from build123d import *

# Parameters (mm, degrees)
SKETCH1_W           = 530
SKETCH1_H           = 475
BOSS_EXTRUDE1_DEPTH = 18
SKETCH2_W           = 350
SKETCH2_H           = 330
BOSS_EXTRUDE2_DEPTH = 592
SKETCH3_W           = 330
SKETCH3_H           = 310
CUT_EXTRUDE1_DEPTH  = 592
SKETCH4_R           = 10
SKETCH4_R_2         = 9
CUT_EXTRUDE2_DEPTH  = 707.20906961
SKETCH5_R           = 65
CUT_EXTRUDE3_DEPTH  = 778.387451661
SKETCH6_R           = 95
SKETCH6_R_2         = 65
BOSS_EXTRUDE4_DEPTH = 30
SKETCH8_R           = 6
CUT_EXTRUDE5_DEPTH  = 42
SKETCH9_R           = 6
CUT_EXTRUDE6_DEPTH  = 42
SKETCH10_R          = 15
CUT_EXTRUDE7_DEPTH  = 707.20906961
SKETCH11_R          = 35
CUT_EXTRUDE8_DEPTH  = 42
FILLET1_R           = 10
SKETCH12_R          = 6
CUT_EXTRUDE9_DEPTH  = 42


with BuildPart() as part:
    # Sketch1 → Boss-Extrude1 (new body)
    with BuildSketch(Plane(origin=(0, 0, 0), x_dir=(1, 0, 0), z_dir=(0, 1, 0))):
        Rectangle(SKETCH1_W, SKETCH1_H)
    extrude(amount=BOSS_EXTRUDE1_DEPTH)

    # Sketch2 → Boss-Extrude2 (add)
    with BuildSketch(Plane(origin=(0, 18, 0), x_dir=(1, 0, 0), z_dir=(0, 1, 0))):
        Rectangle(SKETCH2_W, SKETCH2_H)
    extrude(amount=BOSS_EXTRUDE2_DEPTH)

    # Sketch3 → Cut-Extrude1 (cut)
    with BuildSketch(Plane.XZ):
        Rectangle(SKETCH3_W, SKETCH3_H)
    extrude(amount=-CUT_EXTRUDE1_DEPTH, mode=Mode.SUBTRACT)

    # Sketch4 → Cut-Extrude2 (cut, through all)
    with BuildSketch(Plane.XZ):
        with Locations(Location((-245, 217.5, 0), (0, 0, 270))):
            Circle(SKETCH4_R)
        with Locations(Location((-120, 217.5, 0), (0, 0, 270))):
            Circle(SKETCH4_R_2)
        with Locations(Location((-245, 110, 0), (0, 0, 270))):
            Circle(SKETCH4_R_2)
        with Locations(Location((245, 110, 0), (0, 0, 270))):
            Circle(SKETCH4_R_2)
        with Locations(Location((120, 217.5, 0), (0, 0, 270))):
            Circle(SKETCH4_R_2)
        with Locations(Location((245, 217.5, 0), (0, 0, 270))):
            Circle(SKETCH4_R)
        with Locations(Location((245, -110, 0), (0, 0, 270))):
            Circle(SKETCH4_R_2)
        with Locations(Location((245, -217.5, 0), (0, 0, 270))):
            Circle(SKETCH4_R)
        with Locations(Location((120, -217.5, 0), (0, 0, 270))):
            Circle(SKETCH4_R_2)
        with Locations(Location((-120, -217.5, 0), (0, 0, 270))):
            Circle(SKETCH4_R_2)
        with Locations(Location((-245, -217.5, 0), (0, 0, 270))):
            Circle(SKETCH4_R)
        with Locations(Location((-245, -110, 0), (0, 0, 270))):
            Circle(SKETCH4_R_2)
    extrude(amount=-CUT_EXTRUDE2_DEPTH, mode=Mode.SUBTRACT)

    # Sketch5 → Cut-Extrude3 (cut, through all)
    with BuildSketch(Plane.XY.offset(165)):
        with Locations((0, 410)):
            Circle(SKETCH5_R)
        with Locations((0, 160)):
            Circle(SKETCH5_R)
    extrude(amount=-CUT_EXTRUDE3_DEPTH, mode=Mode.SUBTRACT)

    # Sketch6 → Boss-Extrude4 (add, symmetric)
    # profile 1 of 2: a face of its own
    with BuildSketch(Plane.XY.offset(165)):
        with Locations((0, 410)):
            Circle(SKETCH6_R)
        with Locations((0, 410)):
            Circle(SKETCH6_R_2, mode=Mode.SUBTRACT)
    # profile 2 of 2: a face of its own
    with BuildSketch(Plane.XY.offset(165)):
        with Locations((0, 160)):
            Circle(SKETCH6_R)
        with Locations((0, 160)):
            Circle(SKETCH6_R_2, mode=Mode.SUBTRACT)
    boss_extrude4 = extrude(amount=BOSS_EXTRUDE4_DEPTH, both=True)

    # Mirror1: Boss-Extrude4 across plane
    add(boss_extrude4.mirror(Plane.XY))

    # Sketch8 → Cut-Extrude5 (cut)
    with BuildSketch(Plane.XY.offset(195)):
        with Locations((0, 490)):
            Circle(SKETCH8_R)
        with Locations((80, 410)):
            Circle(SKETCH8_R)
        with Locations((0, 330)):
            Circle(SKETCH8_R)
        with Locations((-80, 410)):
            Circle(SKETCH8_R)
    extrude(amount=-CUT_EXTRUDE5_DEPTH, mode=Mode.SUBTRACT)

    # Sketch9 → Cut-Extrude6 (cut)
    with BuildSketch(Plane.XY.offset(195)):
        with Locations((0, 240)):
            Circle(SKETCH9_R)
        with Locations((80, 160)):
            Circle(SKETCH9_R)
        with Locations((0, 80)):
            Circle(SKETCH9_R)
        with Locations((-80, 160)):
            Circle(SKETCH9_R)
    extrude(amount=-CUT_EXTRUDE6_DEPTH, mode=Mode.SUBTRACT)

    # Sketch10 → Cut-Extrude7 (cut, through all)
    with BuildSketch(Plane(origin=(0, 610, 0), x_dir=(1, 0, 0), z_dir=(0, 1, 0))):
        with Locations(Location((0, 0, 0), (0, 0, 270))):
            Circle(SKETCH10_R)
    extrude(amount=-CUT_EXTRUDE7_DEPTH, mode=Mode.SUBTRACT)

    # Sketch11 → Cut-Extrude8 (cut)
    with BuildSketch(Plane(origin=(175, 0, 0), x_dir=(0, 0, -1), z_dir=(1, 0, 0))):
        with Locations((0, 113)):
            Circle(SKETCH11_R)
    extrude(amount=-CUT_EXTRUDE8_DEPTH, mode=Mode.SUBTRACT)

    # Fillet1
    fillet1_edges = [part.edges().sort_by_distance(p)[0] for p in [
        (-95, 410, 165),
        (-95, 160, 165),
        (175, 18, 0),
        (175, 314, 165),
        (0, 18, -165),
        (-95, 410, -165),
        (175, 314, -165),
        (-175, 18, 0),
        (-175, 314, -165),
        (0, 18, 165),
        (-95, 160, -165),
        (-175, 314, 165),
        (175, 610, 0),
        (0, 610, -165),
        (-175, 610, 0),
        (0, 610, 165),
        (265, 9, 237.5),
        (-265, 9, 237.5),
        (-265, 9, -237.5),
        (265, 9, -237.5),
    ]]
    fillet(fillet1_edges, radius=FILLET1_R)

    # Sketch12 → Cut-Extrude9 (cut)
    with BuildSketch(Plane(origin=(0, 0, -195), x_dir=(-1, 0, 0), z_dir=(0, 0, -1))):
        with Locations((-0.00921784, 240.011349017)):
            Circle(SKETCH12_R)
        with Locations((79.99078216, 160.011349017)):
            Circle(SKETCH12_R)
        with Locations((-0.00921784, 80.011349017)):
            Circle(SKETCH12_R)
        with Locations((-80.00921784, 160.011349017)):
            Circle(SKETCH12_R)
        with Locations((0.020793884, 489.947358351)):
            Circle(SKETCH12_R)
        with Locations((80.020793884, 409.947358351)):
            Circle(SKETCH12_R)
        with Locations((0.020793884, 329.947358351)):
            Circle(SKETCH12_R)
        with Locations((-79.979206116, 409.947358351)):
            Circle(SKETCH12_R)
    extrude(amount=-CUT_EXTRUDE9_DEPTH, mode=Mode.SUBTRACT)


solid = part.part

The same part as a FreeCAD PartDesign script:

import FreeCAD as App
import Part
import Sketcher
from FreeCAD import Vector
Q = App.Units.Quantity


def edges_at(feature, points):
    """Names of the edges that pass closest to the given points."""
    edges = feature.Shape.Edges
    near = lambda p: min(range(len(edges)), key=lambda i: edges[i].distToShape(Part.Vertex(*p))[0])
    return sorted({f"Edge{near(p) + 1}" for p in points})

doc = App.newDocument("Part")
params = doc.addObject("Spreadsheet::Sheet", "Params")
for row, (alias, value) in enumerate([
    ("sketch1_width", "530 mm"),
    ("sketch1_height", "475 mm"),
    ("pad1_length", "18 mm"),
    ("sketch2_width", "350 mm"),
    ("sketch2_height", "330 mm"),
    ("pad2_length", "592 mm"),
    ("sketch3_width", "330 mm"),
    ("sketch3_height", "310 mm"),
    ("pocket1_length", "592 mm"),
    ("sketch4_diameter", "20 mm"),
    ("sketch4_diameter2", "18 mm"),
    ("sketch5_diameter", "130 mm"),
    ("sketch6_diameter", "190 mm"),
    ("sketch6_diameter2", "130 mm"),
    ("pad3_length", "60 mm"),
    ("sketch7_diameter", "12 mm"),
    ("pocket4_length", "42 mm"),
    ("sketch8_diameter", "12 mm"),
    ("pocket5_length", "42 mm"),
    ("sketch9_diameter", "30 mm"),
    ("sketch10_diameter", "70 mm"),
    ("pocket7_length", "42 mm"),
    ("fillet_radius", "10 mm"),
    ("sketch11_diameter", "12 mm"),
    ("pocket8_length", "42 mm"),
], start=1):
    params.set(f"A{row}", alias)
    params.set(f"B{row}", "=" + value)
    params.setAlias(f"B{row}", alias)

body = doc.addObject("PartDesign::Body", "Body")

sketch1 = body.newObject("Sketcher::SketchObject", "Sketch")
sketch1.AttachmentSupport = (doc.getObject("XZ_Plane"), [""])
sketch1.MapMode = "FlatFace"
sketch1.addGeometry(Part.LineSegment(Vector(-265, -238, 0), Vector(-265, 238, 0)), False)
sketch1.addGeometry(Part.LineSegment(Vector(-265, 238, 0), Vector(265, 238, 0)), False)
sketch1.addGeometry(Part.LineSegment(Vector(265, 238, 0), Vector(265, -238, 0)), False)
sketch1.addGeometry(Part.LineSegment(Vector(265, -238, 0), Vector(-265, -238, 0)), False)
sketch1.addConstraint(Sketcher.Constraint("Coincident", 0, 2, 1, 1))
sketch1.addConstraint(Sketcher.Constraint("Coincident", 1, 2, 2, 1))
sketch1.addConstraint(Sketcher.Constraint("Coincident", 2, 2, 3, 1))
sketch1.addConstraint(Sketcher.Constraint("Coincident", 3, 2, 0, 1))
sketch1.addConstraint(Sketcher.Constraint("Vertical", 0))
sketch1.addConstraint(Sketcher.Constraint("Horizontal", 1))
sketch1.addConstraint(Sketcher.Constraint("Vertical", 2))
sketch1.addConstraint(Sketcher.Constraint("Horizontal", 3))
sketch1.addConstraint(Sketcher.Constraint("Symmetric", 0, 2, 2, 2, -1, 1))
sketch1.addConstraint(Sketcher.Constraint("DistanceX", 1, 1, 1, 2, Q("530 mm")))
sketch1.addConstraint(Sketcher.Constraint("DistanceY", 0, 1, 0, 2, Q("475 mm")))
sketch1.setExpression("Constraints[9]", "Params.sketch1_width")
sketch1.setExpression("Constraints[10]", "Params.sketch1_height")
pad1 = body.newObject("PartDesign::Pad", "Pad")
pad1.Profile = sketch1
pad1.setExpression("Length", "Params.pad1_length")
pad1.Reversed = True

sketch2 = body.newObject("Sketcher::SketchObject", "Sketch001")
sketch2.AttachmentSupport = (doc.getObject("XZ_Plane"), [""])
sketch2.MapMode = "FlatFace"
sketch2.AttachmentOffset = App.Placement(Vector(0, 0, -18), App.Rotation())
sketch2.addGeometry(Part.LineSegment(Vector(-175, -165, 0), Vector(-175, 165, 0)), False)
sketch2.addGeometry(Part.LineSegment(Vector(-175, 165, 0), Vector(175, 165, 0)), False)
sketch2.addGeometry(Part.LineSegment(Vector(175, 165, 0), Vector(175, -165, 0)), False)
sketch2.addGeometry(Part.LineSegment(Vector(175, -165, 0), Vector(-175, -165, 0)), False)
sketch2.addConstraint(Sketcher.Constraint("Coincident", 0, 2, 1, 1))
sketch2.addConstraint(Sketcher.Constraint("Coincident", 1, 2, 2, 1))
sketch2.addConstraint(Sketcher.Constraint("Coincident", 2, 2, 3, 1))
sketch2.addConstraint(Sketcher.Constraint("Coincident", 3, 2, 0, 1))
sketch2.addConstraint(Sketcher.Constraint("Vertical", 0))
sketch2.addConstraint(Sketcher.Constraint("Horizontal", 1))
sketch2.addConstraint(Sketcher.Constraint("Vertical", 2))
sketch2.addConstraint(Sketcher.Constraint("Horizontal", 3))
sketch2.addConstraint(Sketcher.Constraint("Symmetric", 0, 2, 2, 2, -1, 1))
sketch2.addConstraint(Sketcher.Constraint("DistanceX", 1, 1, 1, 2, Q("350 mm")))
sketch2.addConstraint(Sketcher.Constraint("DistanceY", 0, 1, 0, 2, Q("330 mm")))
sketch2.setExpression("Constraints[9]", "Params.sketch2_width")
sketch2.setExpression("Constraints[10]", "Params.sketch2_height")
pad2 = body.newObject("PartDesign::Pad", "Pad001")
pad2.Profile = sketch2
pad2.setExpression("Length", "Params.pad2_length")
pad2.Reversed = True

sketch3 = body.newObject("Sketcher::SketchObject", "Sketch002")
sketch3.AttachmentSupport = (doc.getObject("XZ_Plane"), [""])
sketch3.MapMode = "FlatFace"
sketch3.addGeometry(Part.LineSegment(Vector(-165, 155, 0), Vector(-165, -155, 0)), False)
sketch3.addGeometry(Part.LineSegment(Vector(-165, -155, 0), Vector(165, -155, 0)), False)
sketch3.addGeometry(Part.LineSegment(Vector(165, -155, 0), Vector(165, 155, 0)), False)
sketch3.addGeometry(Part.LineSegment(Vector(165, 155, 0), Vector(-165, 155, 0)), False)
sketch3.addConstraint(Sketcher.Constraint("Coincident", 0, 2, 1, 1))
sketch3.addConstraint(Sketcher.Constraint("Coincident", 1, 2, 2, 1))
sketch3.addConstraint(Sketcher.Constraint("Coincident", 2, 2, 3, 1))
sketch3.addConstraint(Sketcher.Constraint("Coincident", 3, 2, 0, 1))
sketch3.addConstraint(Sketcher.Constraint("Vertical", 0))
sketch3.addConstraint(Sketcher.Constraint("Horizontal", 1))
sketch3.addConstraint(Sketcher.Constraint("Vertical", 2))
sketch3.addConstraint(Sketcher.Constraint("Horizontal", 3))
sketch3.addConstraint(Sketcher.Constraint("Symmetric", 0, 2, 2, 2, -1, 1))
sketch3.addConstraint(Sketcher.Constraint("DistanceX", 1, 1, 1, 2, Q("330 mm")))
sketch3.addConstraint(Sketcher.Constraint("DistanceY", 0, 2, 0, 1, Q("310 mm")))
sketch3.setExpression("Constraints[9]", "Params.sketch3_width")
sketch3.setExpression("Constraints[10]", "Params.sketch3_height")
pocket1 = body.newObject("PartDesign::Pocket", "Pocket")
pocket1.Profile = sketch3
pocket1.setExpression("Length", "Params.pocket1_length")

sketch4 = body.newObject("Sketcher::SketchObject", "Sketch003")
sketch4.AttachmentSupport = (doc.getObject("XZ_Plane"), [""])
sketch4.MapMode = "FlatFace"
sketch4.addGeometry(Part.Circle(Vector(-245, 218, 0), Vector(0, 0, 1), 10), False)
sketch4.addGeometry(Part.Circle(Vector(-120, 218, 0), Vector(0, 0, 1), 9), False)
sketch4.addGeometry(Part.Circle(Vector(-245, 110, 0), Vector(0, 0, 1), 9), False)
sketch4.addGeometry(Part.Circle(Vector(245, 110, 0), Vector(0, 0, 1), 9), False)
sketch4.addGeometry(Part.Circle(Vector(120, 218, 0), Vector(0, 0, 1), 9), False)
sketch4.addGeometry(Part.Circle(Vector(245, 218, 0), Vector(0, 0, 1), 10), False)
sketch4.addGeometry(Part.Circle(Vector(245, -110, 0), Vector(0, 0, 1), 9), False)
sketch4.addGeometry(Part.Circle(Vector(245, -218, 0), Vector(0, 0, 1), 10), False)
sketch4.addGeometry(Part.Circle(Vector(120, -218, 0), Vector(0, 0, 1), 9), False)
sketch4.addGeometry(Part.Circle(Vector(-120, -218, 0), Vector(0, 0, 1), 9), False)
sketch4.addGeometry(Part.Circle(Vector(-245, -218, 0), Vector(0, 0, 1), 10), False)
sketch4.addGeometry(Part.Circle(Vector(-245, -110, 0), Vector(0, 0, 1), 9), False)
sketch4.addConstraint(Sketcher.Constraint("Equal", 1, 2))
sketch4.addConstraint(Sketcher.Constraint("Equal", 2, 3))
sketch4.addConstraint(Sketcher.Constraint("Equal", 3, 4))
sketch4.addConstraint(Sketcher.Constraint("Equal", 0, 5))
sketch4.addConstraint(Sketcher.Constraint("Equal", 4, 6))
sketch4.addConstraint(Sketcher.Constraint("Equal", 5, 7))
sketch4.addConstraint(Sketcher.Constraint("Equal", 6, 8))
sketch4.addConstraint(Sketcher.Constraint("Equal", 8, 9))
sketch4.addConstraint(Sketcher.Constraint("Equal", 7, 10))
sketch4.addConstraint(Sketcher.Constraint("Equal", 9, 11))
sketch4.addConstraint(Sketcher.Constraint("Symmetric", 2, 3, 6, 3, -1, 1))
sketch4.addConstraint(Sketcher.Constraint("Symmetric", 0, 3, 7, 3, -1, 1))
sketch4.addConstraint(Sketcher.Constraint("Symmetric", 1, 3, 8, 3, -1, 1))
sketch4.addConstraint(Sketcher.Constraint("Symmetric", 4, 3, 9, 3, -1, 1))
sketch4.addConstraint(Sketcher.Constraint("Symmetric", 5, 3, 10, 3, -1, 1))
sketch4.addConstraint(Sketcher.Constraint("Symmetric", 3, 3, 11, 3, -1, 1))
sketch4.addConstraint(Sketcher.Constraint("Symmetric", 2, 3, 3, 3, -2))
sketch4.addConstraint(Sketcher.Constraint("Symmetric", 1, 3, 4, 3, -2))
sketch4.addConstraint(Sketcher.Constraint("Symmetric", 0, 3, 5, 3, -2))
sketch4.addConstraint(Sketcher.Constraint("Horizontal", 0, 3, 1, 3))
sketch4.addConstraint(Sketcher.Constraint("Vertical", 0, 3, 2, 3))
sketch4.addConstraint(Sketcher.Constraint("Diameter", 0, Q("20 mm")))
sketch4.addConstraint(Sketcher.Constraint("Diameter", 1, Q("18 mm")))
sketch4.addConstraint(Sketcher.Constraint("DistanceX", 0, 3, -1, 1, Q("245 mm")))
sketch4.addConstraint(Sketcher.Constraint("DistanceX", 1, 3, -1, 1, Q("120 mm")))
sketch4.addConstraint(Sketcher.Constraint("DistanceY", -1, 1, 2, 3, Q("110 mm")))
sketch4.addConstraint(Sketcher.Constraint("DistanceY", 7, 3, 5, 3, Q("435 mm")))
sketch4.setExpression("Constraints[21]", "Params.sketch4_diameter")
sketch4.setExpression("Constraints[22]", "Params.sketch4_diameter2")
pocket2 = body.newObject("PartDesign::Pocket", "Pocket001")
pocket2.Profile = sketch4
pocket2.Type = "ThroughAll"

sketch5 = body.newObject("Sketcher::SketchObject", "Sketch004")
sketch5.AttachmentSupport = (doc.getObject("XY_Plane"), [""])
sketch5.MapMode = "FlatFace"
sketch5.AttachmentOffset = App.Placement(Vector(0, 0, 165), App.Rotation())
sketch5.addGeometry(Part.Circle(Vector(0, 410, 0), Vector(0, 0, 1), 65), False)
sketch5.addGeometry(Part.Circle(Vector(0, 160, 0), Vector(0, 0, 1), 65), False)
sketch5.addConstraint(Sketcher.Constraint("Equal", 0, 1))
sketch5.addConstraint(Sketcher.Constraint("PointOnObject", 0, 3, -2))
sketch5.addConstraint(Sketcher.Constraint("PointOnObject", 1, 3, -2))
sketch5.addConstraint(Sketcher.Constraint("Diameter", 0, Q("130 mm")))
sketch5.addConstraint(Sketcher.Constraint("DistanceY", -1, 1, 0, 3, Q("410 mm")))
sketch5.addConstraint(Sketcher.Constraint("DistanceY", -1, 1, 1, 3, Q("160 mm")))
sketch5.setExpression("Constraints[3]", "Params.sketch5_diameter")
pocket3 = body.newObject("PartDesign::Pocket", "Pocket002")
pocket3.Profile = sketch5
pocket3.Type = "ThroughAll"

sketch6 = body.newObject("Sketcher::SketchObject", "Sketch005")
sketch6.AttachmentSupport = (doc.getObject("XY_Plane"), [""])
sketch6.MapMode = "FlatFace"
sketch6.AttachmentOffset = App.Placement(Vector(0, 0, 165), App.Rotation())
sketch6.addGeometry(Part.Circle(Vector(0, 410, 0), Vector(0, 0, 1), 95), False)
sketch6.addGeometry(Part.Circle(Vector(0, 410, 0), Vector(0, 0, 1), 65), False)
sketch6.addGeometry(Part.Circle(Vector(0, 160, 0), Vector(0, 0, 1), 95), False)
sketch6.addGeometry(Part.Circle(Vector(0, 160, 0), Vector(0, 0, 1), 65), False)
sketch6.addConstraint(Sketcher.Constraint("Coincident", 1, 3, 0, 3))
sketch6.addConstraint(Sketcher.Constraint("Coincident", 3, 3, 2, 3))
sketch6.addConstraint(Sketcher.Constraint("Equal", 0, 2))
sketch6.addConstraint(Sketcher.Constraint("Equal", 1, 3))
sketch6.addConstraint(Sketcher.Constraint("PointOnObject", 0, 3, -2))
sketch6.addConstraint(Sketcher.Constraint("PointOnObject", 2, 3, -2))
sketch6.addConstraint(Sketcher.Constraint("Diameter", 0, Q("190 mm")))
sketch6.addConstraint(Sketcher.Constraint("Diameter", 1, Q("130 mm")))
sketch6.addConstraint(Sketcher.Constraint("DistanceY", -1, 1, 0, 3, Q("410 mm")))
sketch6.addConstraint(Sketcher.Constraint("DistanceY", -1, 1, 2, 3, Q("160 mm")))
sketch6.setExpression("Constraints[6]", "Params.sketch6_diameter")
sketch6.setExpression("Constraints[7]", "Params.sketch6_diameter2")
pad3 = body.newObject("PartDesign::Pad", "Pad002")
pad3.Profile = sketch6
pad3.setExpression("Length", "Params.pad3_length")
pad3.Midplane = True
doc.recompute()

mirrored = body.newObject("PartDesign::Mirrored", "Mirrored")
mirrored.Originals = [pad3]
mirrored.MirrorPlane = (doc.getObject("XY_Plane"), [""])
body.Tip = mirrored

sketch7 = body.newObject("Sketcher::SketchObject", "Sketch006")
sketch7.AttachmentSupport = (doc.getObject("XY_Plane"), [""])
sketch7.MapMode = "FlatFace"
sketch7.AttachmentOffset = App.Placement(Vector(0, 0, 195), App.Rotation())
sketch7.addGeometry(Part.Circle(Vector(0, 490, 0), Vector(0, 0, 1), 6), False)
sketch7.addGeometry(Part.Circle(Vector(80, 410, 0), Vector(0, 0, 1), 6), False)
sketch7.addGeometry(Part.Circle(Vector(0, 330, 0), Vector(0, 0, 1), 6), False)
sketch7.addGeometry(Part.Circle(Vector(-80, 410, 0), Vector(0, 0, 1), 6), False)
sketch7.addConstraint(Sketcher.Constraint("Equal", 0, 1))
sketch7.addConstraint(Sketcher.Constraint("Equal", 1, 2))
sketch7.addConstraint(Sketcher.Constraint("Equal", 2, 3))
sketch7.addConstraint(Sketcher.Constraint("Symmetric", 1, 3, 3, 3, -2))
sketch7.addConstraint(Sketcher.Constraint("PointOnObject", 0, 3, -2))
sketch7.addConstraint(Sketcher.Constraint("PointOnObject", 2, 3, -2))
sketch7.addConstraint(Sketcher.Constraint("Diameter", 0, Q("12 mm")))
sketch7.addConstraint(Sketcher.Constraint("DistanceY", -1, 1, 0, 3, Q("490 mm")))
sketch7.addConstraint(Sketcher.Constraint("DistanceX", -1, 1, 1, 3, Q("80 mm")))
sketch7.addConstraint(Sketcher.Constraint("DistanceY", -1, 1, 1, 3, Q("410 mm")))
sketch7.addConstraint(Sketcher.Constraint("DistanceY", -1, 1, 2, 3, Q("330 mm")))
sketch7.setExpression("Constraints[6]", "Params.sketch7_diameter")
pocket4 = body.newObject("PartDesign::Pocket", "Pocket003")
pocket4.Profile = sketch7
pocket4.setExpression("Length", "Params.pocket4_length")

sketch8 = body.newObject("Sketcher::SketchObject", "Sketch007")
sketch8.AttachmentSupport = (doc.getObject("XY_Plane"), [""])
sketch8.MapMode = "FlatFace"
sketch8.AttachmentOffset = App.Placement(Vector(0, 0, 195), App.Rotation())
sketch8.addGeometry(Part.Circle(Vector(0, 240, 0), Vector(0, 0, 1), 6), False)
sketch8.addGeometry(Part.Circle(Vector(80, 160, 0), Vector(0, 0, 1), 6), False)
sketch8.addGeometry(Part.Circle(Vector(0, 80, 0), Vector(0, 0, 1), 6), False)
sketch8.addGeometry(Part.Circle(Vector(-80, 160, 0), Vector(0, 0, 1), 6), False)
sketch8.addConstraint(Sketcher.Constraint("Equal", 0, 1))
sketch8.addConstraint(Sketcher.Constraint("Equal", 1, 2))
sketch8.addConstraint(Sketcher.Constraint("Equal", 2, 3))
sketch8.addConstraint(Sketcher.Constraint("Symmetric", 1, 3, 3, 3, -2))
sketch8.addConstraint(Sketcher.Constraint("PointOnObject", 0, 3, -2))
sketch8.addConstraint(Sketcher.Constraint("PointOnObject", 2, 3, -2))
sketch8.addConstraint(Sketcher.Constraint("Diameter", 0, Q("12 mm")))
sketch8.addConstraint(Sketcher.Constraint("DistanceY", -1, 1, 0, 3, Q("240 mm")))
sketch8.addConstraint(Sketcher.Constraint("DistanceX", -1, 1, 1, 3, Q("80 mm")))
sketch8.addConstraint(Sketcher.Constraint("DistanceY", -1, 1, 1, 3, Q("160 mm")))
sketch8.addConstraint(Sketcher.Constraint("DistanceY", -1, 1, 2, 3, Q("80 mm")))
sketch8.setExpression("Constraints[6]", "Params.sketch8_diameter")
pocket5 = body.newObject("PartDesign::Pocket", "Pocket004")
pocket5.Profile = sketch8
pocket5.setExpression("Length", "Params.pocket5_length")

sketch9 = body.newObject("Sketcher::SketchObject", "Sketch008")
sketch9.AttachmentSupport = (doc.getObject("XZ_Plane"), [""])
sketch9.MapMode = "FlatFace"
sketch9.AttachmentOffset = App.Placement(Vector(0, 0, -610), App.Rotation())
sketch9.addGeometry(Part.Circle(Vector(0, 0, 0), Vector(0, 0, 1), 15), False)
sketch9.addConstraint(Sketcher.Constraint("Coincident", 0, 3, -1, 1))
sketch9.addConstraint(Sketcher.Constraint("Diameter", 0, Q("30 mm")))
sketch9.setExpression("Constraints[1]", "Params.sketch9_diameter")
pocket6 = body.newObject("PartDesign::Pocket", "Pocket005")
pocket6.Profile = sketch9
pocket6.Type = "ThroughAll"
pocket6.Reversed = True

sketch10 = body.newObject("Sketcher::SketchObject", "Sketch009")
sketch10.AttachmentSupport = (doc.getObject("YZ_Plane"), [""])
sketch10.MapMode = "FlatFace"
sketch10.AttachmentOffset = App.Placement(Vector(0, 0, 175), App.Rotation())
sketch10.addGeometry(Part.Circle(Vector(113, 0, 0), Vector(0, 0, 1), 35), False)
sketch10.addConstraint(Sketcher.Constraint("PointOnObject", 0, 3, -1))
sketch10.addConstraint(Sketcher.Constraint("Diameter", 0, Q("70 mm")))
sketch10.addConstraint(Sketcher.Constraint("DistanceX", -1, 1, 0, 3, Q("113 mm")))
sketch10.setExpression("Constraints[1]", "Params.sketch10_diameter")
pocket7 = body.newObject("PartDesign::Pocket", "Pocket006")
pocket7.Profile = sketch10
pocket7.setExpression("Length", "Params.pocket7_length")
doc.recompute()

fillet = body.newObject("PartDesign::Fillet", "Fillet")
fillet.Base = (pocket7, edges_at(pocket7, [
    (-95, 410, 165),
    (-95, 160, 165),
    (175, 18, 0),
    (175, 314, 165),
    (0, 18, -165),
    (-95, 410, -165),
    (175, 314, -165),
    (-175, 18, 0),
    (-175, 314, -165),
    (0, 18, 165),
    (-95, 160, -165),
    (-175, 314, 165),
    (175, 610, 0),
    (0, 610, -165),
    (-175, 610, 0),
    (0, 610, 165),
    (265, 9, 237.5),
    (-265, 9, 237.5),
    (-265, 9, -237.5),
    (265, 9, -237.5),
]))
fillet.setExpression("Radius", "Params.fillet_radius")

sketch11 = body.newObject("Sketcher::SketchObject", "Sketch010")
sketch11.AttachmentSupport = (doc.getObject("XY_Plane"), [""])
sketch11.MapMode = "FlatFace"
sketch11.AttachmentOffset = App.Placement(Vector(0, 0, -195), App.Rotation())
sketch11.addGeometry(Part.Circle(Vector(0, 240, 0), Vector(0, 0, 1), 6), False)
sketch11.addGeometry(Part.Circle(Vector(-80, 160, 0), Vector(0, 0, 1), 6), False)
sketch11.addGeometry(Part.Circle(Vector(0, 80, 0), Vector(0, 0, 1), 6), False)
sketch11.addGeometry(Part.Circle(Vector(80, 160, 0), Vector(0, 0, 1), 6), False)
sketch11.addGeometry(Part.Circle(Vector(0, 490, 0), Vector(0, 0, 1), 6), False)
sketch11.addGeometry(Part.Circle(Vector(-80, 410, 0), Vector(0, 0, 1), 6), False)
sketch11.addGeometry(Part.Circle(Vector(0, 330, 0), Vector(0, 0, 1), 6), False)
sketch11.addGeometry(Part.Circle(Vector(80, 410, 0), Vector(0, 0, 1), 6), False)
sketch11.addConstraint(Sketcher.Constraint("Equal", 0, 1))
sketch11.addConstraint(Sketcher.Constraint("Equal", 1, 2))
sketch11.addConstraint(Sketcher.Constraint("Equal", 2, 3))
sketch11.addConstraint(Sketcher.Constraint("Equal", 3, 4))
sketch11.addConstraint(Sketcher.Constraint("Equal", 4, 5))
sketch11.addConstraint(Sketcher.Constraint("Equal", 5, 6))
sketch11.addConstraint(Sketcher.Constraint("Equal", 6, 7))
sketch11.addConstraint(Sketcher.Constraint("Horizontal", 1, 3, 3, 3))
sketch11.addConstraint(Sketcher.Constraint("Horizontal", 5, 3, 7, 3))
sketch11.addConstraint(Sketcher.Constraint("Vertical", 0, 3, 2, 3))
sketch11.addConstraint(Sketcher.Constraint("Vertical", 4, 3, 6, 3))
sketch11.addConstraint(Sketcher.Constraint("Diameter", 0, Q("12 mm")))
sketch11.addConstraint(Sketcher.Constraint("DistanceX", 1, 3, 0, 3, Q("80 mm")))
sketch11.addConstraint(Sketcher.Constraint("DistanceY", 1, 3, 0, 3, Q("80 mm")))
sketch11.addConstraint(Sketcher.Constraint("DistanceY", 2, 3, 1, 3, Q("80 mm")))
sketch11.addConstraint(Sketcher.Constraint("DistanceX", 2, 3, 3, 3, Q("80 mm")))
sketch11.addConstraint(Sketcher.Constraint("DistanceX", 5, 3, 4, 3, Q("80 mm")))
sketch11.addConstraint(Sketcher.Constraint("DistanceY", 5, 3, 4, 3, Q("80 mm")))
sketch11.addConstraint(Sketcher.Constraint("DistanceY", 6, 3, 5, 3, Q("80 mm")))
sketch11.addConstraint(Sketcher.Constraint("DistanceX", 4, 3, 7, 3, Q("80 mm")))
sketch11.addConstraint(Sketcher.Constraint("DistanceY", -1, 1, 0, 3, Q("240.011349 mm")))
sketch11.addConstraint(Sketcher.Constraint("DistanceY", -1, 1, 4, 3, Q("489.947358 mm")))
sketch11.addConstraint(Sketcher.Constraint("DistanceX", 4, 3, 0, 3, Q("0.030012 mm")))
sketch11.addConstraint(Sketcher.Constraint("DistanceX", -1, 1, 0, 3, Q("0.009218 mm")))
sketch11.setExpression("Constraints[11]", "Params.sketch11_diameter")
pocket8 = body.newObject("PartDesign::Pocket", "Pocket007")
pocket8.Profile = sketch11
pocket8.setExpression("Length", "Params.pocket8_length")
pocket8.Reversed = True

doc.recompute()
